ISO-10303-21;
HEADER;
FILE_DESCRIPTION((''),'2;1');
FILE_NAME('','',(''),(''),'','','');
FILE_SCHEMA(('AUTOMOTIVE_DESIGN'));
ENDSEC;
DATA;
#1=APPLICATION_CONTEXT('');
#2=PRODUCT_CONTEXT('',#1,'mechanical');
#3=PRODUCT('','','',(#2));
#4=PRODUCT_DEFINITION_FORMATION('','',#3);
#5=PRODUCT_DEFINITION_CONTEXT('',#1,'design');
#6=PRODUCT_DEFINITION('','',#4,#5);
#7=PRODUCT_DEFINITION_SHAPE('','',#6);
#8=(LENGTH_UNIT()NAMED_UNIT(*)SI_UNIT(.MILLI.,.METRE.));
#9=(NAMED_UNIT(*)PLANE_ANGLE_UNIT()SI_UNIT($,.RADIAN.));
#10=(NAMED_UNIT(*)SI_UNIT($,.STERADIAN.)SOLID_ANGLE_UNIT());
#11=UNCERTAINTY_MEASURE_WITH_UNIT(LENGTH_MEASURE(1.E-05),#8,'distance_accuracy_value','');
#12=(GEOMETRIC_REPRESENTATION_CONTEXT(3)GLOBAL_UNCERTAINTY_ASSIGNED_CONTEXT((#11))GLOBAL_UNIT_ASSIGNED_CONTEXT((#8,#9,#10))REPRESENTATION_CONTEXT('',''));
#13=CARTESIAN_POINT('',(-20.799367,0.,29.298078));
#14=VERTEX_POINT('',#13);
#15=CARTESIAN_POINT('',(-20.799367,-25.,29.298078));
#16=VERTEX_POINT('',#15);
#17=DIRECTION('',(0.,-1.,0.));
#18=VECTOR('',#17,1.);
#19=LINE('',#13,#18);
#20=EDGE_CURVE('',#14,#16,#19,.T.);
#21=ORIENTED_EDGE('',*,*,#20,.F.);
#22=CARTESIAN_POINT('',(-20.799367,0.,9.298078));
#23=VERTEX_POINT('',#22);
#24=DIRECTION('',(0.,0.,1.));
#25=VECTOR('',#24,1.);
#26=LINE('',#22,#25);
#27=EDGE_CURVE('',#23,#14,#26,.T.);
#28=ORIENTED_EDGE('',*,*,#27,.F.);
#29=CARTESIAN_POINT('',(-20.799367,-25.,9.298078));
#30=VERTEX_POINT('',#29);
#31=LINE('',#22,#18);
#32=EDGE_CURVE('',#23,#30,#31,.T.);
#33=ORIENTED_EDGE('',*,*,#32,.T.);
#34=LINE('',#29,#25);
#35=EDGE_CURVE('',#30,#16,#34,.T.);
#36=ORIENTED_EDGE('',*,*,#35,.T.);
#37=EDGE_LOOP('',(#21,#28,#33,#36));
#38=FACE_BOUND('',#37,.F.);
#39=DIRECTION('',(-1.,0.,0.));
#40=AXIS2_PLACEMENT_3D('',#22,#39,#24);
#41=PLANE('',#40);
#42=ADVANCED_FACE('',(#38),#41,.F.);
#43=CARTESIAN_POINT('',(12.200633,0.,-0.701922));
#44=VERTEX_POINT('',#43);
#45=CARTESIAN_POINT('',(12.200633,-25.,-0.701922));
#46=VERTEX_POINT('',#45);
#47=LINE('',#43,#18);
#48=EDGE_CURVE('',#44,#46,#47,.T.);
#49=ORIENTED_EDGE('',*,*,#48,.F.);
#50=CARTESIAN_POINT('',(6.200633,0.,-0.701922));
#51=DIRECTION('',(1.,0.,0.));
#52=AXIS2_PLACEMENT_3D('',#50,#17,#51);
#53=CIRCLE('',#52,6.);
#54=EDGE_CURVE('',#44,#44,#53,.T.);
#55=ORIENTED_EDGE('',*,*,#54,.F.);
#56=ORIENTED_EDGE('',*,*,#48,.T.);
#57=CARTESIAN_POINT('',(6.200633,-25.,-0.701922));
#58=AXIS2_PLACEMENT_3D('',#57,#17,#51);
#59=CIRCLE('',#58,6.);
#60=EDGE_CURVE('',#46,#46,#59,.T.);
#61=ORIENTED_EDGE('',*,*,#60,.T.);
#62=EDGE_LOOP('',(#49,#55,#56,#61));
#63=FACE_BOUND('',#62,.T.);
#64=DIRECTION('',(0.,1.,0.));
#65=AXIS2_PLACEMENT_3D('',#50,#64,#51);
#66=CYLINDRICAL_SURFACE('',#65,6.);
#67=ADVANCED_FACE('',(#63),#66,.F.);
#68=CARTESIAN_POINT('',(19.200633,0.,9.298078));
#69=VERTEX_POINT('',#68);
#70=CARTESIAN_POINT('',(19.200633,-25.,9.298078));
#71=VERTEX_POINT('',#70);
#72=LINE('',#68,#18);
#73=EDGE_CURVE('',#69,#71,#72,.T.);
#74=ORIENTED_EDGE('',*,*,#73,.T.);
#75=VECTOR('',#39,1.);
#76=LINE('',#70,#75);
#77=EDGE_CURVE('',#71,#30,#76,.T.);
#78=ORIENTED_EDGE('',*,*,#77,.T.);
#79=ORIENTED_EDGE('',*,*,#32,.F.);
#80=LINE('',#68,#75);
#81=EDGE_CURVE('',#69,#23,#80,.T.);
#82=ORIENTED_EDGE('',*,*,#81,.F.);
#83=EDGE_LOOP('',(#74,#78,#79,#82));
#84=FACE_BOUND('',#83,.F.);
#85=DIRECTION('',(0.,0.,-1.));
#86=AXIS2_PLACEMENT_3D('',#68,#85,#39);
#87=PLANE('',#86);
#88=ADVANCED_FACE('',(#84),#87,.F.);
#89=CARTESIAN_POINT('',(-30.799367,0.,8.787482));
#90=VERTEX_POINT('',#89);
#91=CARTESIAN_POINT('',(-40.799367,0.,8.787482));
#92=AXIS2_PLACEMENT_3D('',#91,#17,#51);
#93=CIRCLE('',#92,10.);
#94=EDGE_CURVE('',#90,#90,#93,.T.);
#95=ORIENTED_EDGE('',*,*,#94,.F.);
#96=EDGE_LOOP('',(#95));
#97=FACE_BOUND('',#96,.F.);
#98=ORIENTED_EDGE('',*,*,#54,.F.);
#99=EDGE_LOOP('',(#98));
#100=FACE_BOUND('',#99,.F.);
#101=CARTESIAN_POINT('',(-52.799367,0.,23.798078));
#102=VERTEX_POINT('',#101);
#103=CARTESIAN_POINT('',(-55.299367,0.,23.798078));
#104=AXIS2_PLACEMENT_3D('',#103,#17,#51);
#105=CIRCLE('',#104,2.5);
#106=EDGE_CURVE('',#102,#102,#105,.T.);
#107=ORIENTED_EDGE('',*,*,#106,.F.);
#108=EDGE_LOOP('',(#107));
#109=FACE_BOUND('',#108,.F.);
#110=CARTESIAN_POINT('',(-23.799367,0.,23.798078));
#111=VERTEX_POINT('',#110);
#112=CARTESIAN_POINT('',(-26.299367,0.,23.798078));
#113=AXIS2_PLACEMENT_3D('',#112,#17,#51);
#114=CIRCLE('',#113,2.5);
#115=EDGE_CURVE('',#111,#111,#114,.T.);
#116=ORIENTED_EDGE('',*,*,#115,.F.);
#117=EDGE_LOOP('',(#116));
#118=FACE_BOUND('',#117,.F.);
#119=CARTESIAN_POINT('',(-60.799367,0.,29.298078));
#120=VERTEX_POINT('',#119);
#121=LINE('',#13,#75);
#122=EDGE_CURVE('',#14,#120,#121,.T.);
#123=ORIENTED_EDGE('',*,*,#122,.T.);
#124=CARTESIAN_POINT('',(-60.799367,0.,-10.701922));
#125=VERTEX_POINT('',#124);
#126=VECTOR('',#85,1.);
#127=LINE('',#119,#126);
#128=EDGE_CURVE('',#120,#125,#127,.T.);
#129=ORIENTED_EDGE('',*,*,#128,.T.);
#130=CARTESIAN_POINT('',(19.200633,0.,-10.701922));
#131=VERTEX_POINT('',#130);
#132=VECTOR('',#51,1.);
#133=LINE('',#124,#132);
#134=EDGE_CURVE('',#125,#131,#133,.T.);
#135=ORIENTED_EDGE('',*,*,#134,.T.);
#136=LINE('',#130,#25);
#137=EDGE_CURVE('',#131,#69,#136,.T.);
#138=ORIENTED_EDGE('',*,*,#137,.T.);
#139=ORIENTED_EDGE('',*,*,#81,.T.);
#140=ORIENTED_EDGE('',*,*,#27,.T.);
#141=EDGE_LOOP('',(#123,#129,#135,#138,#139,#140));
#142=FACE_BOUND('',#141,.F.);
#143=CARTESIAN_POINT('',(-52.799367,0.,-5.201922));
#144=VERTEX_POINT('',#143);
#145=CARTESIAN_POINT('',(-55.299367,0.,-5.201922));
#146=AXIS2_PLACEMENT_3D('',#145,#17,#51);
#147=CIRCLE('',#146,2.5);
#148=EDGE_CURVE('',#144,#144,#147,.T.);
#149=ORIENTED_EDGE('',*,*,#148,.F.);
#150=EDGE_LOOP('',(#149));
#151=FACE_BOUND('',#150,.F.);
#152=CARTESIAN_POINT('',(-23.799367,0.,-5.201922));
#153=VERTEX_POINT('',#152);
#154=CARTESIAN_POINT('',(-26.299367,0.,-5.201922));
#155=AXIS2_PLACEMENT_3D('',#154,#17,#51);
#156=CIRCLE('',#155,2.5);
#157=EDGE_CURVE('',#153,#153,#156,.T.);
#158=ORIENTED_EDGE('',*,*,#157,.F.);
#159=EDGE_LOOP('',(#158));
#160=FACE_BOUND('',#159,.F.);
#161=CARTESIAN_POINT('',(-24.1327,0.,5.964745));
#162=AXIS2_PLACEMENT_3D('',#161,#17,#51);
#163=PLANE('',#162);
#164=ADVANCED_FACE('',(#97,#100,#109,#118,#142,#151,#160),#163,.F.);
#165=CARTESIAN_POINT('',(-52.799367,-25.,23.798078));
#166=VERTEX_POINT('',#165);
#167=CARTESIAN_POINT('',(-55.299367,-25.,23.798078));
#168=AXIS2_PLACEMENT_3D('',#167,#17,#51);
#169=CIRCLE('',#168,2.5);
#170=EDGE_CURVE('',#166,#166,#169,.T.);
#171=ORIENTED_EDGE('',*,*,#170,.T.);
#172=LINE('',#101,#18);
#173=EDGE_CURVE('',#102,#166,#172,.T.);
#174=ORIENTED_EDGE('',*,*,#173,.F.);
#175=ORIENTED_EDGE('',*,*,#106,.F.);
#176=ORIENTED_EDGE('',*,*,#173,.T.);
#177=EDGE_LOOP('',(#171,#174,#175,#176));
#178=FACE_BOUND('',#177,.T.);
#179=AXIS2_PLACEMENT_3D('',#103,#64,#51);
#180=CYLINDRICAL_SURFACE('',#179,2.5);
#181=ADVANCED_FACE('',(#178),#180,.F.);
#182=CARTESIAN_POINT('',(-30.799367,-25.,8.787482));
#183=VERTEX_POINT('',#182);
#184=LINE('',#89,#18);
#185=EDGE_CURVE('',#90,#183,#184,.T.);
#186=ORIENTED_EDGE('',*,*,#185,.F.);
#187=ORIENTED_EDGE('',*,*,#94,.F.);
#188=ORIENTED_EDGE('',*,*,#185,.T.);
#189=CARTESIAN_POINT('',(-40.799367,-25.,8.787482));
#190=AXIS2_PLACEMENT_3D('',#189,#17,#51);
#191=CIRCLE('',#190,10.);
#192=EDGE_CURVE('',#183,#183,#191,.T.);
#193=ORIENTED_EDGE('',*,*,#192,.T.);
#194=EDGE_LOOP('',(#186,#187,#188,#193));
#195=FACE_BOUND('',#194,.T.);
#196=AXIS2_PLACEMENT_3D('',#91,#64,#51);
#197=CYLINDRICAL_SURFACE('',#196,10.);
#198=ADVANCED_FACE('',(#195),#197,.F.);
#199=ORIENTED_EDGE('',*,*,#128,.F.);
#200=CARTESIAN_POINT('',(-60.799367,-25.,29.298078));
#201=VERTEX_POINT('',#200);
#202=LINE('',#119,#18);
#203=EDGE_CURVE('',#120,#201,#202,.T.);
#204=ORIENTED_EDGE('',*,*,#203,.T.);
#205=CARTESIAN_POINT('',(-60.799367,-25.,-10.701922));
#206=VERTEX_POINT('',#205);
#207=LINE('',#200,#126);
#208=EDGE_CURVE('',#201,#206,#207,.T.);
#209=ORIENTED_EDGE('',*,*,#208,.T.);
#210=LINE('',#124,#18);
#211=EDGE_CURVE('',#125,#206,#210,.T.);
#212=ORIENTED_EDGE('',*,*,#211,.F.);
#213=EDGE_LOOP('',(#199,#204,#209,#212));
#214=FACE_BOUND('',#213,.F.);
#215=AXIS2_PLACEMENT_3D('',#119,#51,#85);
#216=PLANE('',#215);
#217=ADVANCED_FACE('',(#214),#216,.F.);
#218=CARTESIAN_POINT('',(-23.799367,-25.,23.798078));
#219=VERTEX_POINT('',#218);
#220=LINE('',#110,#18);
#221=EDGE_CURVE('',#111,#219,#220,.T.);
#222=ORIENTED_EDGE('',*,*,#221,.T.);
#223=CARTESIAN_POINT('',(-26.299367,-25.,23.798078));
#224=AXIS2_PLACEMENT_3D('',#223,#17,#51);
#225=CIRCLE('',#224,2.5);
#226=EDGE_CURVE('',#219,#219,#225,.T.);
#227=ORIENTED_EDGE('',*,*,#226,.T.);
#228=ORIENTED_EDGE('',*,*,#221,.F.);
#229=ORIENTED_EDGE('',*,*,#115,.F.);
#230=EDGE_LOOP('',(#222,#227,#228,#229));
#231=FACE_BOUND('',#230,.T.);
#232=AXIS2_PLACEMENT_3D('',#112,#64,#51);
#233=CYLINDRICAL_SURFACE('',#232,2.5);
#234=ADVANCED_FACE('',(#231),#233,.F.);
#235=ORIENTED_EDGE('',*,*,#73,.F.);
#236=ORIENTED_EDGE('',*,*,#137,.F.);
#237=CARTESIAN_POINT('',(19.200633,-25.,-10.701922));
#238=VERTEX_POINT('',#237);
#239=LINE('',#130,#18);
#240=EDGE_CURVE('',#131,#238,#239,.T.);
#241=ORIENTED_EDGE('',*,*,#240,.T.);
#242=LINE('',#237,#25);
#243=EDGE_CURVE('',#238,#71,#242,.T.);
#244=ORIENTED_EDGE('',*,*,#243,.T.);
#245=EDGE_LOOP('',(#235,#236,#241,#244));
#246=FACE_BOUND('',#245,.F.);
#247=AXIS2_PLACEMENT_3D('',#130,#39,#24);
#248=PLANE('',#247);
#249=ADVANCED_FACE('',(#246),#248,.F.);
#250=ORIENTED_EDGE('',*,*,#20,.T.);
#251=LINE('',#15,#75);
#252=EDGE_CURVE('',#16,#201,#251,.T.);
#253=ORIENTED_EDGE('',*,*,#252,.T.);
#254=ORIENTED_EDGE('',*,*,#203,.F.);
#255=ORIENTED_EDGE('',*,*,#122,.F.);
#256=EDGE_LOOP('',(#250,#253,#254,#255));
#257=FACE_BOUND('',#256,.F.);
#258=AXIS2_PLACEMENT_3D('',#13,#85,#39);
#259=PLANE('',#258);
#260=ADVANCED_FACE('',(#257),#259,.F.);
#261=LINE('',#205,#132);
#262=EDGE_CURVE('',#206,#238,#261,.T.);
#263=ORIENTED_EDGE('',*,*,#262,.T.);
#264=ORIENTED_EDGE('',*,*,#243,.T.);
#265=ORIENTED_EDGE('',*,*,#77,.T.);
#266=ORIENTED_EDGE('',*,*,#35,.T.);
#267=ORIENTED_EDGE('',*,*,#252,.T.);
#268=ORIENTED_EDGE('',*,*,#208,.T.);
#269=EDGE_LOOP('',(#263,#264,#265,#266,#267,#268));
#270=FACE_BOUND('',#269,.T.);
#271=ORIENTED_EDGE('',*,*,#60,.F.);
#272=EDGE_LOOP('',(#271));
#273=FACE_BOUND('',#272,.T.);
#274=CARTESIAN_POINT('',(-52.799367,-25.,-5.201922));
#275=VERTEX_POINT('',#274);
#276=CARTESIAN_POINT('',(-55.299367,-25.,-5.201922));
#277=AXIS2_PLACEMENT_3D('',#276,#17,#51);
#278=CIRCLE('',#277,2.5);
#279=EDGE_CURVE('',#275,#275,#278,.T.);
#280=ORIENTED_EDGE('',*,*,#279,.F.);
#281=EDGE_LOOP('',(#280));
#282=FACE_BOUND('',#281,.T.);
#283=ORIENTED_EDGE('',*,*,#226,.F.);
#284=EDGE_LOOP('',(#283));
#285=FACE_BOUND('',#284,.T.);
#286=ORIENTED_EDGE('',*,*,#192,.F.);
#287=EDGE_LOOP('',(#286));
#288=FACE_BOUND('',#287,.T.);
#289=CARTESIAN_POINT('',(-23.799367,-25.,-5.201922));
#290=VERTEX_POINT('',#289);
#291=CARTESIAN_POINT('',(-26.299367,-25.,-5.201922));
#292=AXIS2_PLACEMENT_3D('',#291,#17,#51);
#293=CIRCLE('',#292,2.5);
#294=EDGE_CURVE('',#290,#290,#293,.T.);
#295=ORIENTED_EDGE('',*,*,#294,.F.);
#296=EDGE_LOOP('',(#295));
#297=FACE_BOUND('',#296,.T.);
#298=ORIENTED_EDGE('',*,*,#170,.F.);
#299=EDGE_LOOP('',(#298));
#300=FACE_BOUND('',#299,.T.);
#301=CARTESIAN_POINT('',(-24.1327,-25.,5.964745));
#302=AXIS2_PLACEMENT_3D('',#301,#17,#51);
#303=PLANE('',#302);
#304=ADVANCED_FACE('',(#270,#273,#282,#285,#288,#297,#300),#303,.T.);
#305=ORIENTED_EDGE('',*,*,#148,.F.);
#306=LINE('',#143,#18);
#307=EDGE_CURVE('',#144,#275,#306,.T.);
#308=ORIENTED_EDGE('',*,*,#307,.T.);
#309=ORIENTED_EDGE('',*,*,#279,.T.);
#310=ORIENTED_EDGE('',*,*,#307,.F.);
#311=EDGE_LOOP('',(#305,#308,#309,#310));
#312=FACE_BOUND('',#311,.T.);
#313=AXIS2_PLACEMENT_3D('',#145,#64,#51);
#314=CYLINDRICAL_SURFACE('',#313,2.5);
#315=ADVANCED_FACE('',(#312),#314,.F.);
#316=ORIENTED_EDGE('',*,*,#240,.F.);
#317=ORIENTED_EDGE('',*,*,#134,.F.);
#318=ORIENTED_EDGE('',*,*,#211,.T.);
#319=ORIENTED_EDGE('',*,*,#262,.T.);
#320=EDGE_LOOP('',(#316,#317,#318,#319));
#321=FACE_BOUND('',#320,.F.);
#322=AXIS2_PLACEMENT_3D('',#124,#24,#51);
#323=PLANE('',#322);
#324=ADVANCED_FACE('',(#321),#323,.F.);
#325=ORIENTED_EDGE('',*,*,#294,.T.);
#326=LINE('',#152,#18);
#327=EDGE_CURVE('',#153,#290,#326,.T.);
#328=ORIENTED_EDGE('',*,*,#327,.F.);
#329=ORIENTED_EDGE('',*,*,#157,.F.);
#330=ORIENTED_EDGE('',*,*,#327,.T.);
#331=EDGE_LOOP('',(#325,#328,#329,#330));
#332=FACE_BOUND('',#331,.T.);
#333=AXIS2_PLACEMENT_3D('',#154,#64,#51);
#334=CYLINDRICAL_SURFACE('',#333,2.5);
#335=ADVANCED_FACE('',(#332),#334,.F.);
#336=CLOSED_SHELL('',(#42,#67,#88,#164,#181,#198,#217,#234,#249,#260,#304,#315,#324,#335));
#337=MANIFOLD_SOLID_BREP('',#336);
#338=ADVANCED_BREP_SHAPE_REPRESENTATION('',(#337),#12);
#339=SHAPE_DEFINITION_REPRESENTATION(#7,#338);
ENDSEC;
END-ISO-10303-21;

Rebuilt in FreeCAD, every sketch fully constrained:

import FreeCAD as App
import Part
import Sketcher

V = App.Vector

doc = App.newDocument("Part")
body = doc.addObject("PartDesign::Body", "Body")

# Sketch on XZ plane
sketch1 = body.newObject("Sketcher::SketchObject", "Sketch")
sketch1.AttachmentSupport = (doc.getObject("XZ_Plane"), [""])
sketch1.MapMode = "FlatFace"
sketch1.addGeometry([
    Part.LineSegment(V(-20.8, 29.3, 0), V(-60.8, 29.3, 0)),  # 0
    Part.LineSegment(V(-60.8, 29.3, 0), V(-60.8, -10.7, 0)),  # 1
    Part.LineSegment(V(-60.8, -10.7, 0), V(19.2, -10.7, 0)),  # 2
    Part.LineSegment(V(19.2, -10.7, 0), V(19.2, 9.3, 0)),  # 3
    Part.LineSegment(V(19.2, 9.3, 0), V(-20.8, 9.3, 0)),  # 4
    Part.LineSegment(V(-20.8, 9.3, 0), V(-20.8, 29.3, 0)),  # 5
    Part.Circle(V(-55.3, -5.2, 0), V(0, 0, 1), 2.5),  # 6
    Part.Circle(V(-26.3, -5.2, 0), V(0, 0, 1), 2.5),  # 7
    Part.Circle(V(-40.8, 8.8, 0), V(0, 0, 1), 10),  # 8
    Part.Circle(V(6.2, -0.7, 0), V(0, 0, 1), 6),  # 9
    Part.Circle(V(-55.3, 23.8, 0), V(0, 0, 1), 2.5),  # 10
    Part.Circle(V(-26.3, 23.8, 0), V(0, 0, 1), 2.5),  # 11
], False)
sketch1.addConstraint([
    Sketcher.Constraint("Coincident", 0, 2, 1, 1),
    Sketcher.Constraint("Coincident", 1, 2, 2, 1),
    Sketcher.Constraint("Coincident", 2, 2, 3, 1),
    Sketcher.Constraint("Coincident", 3, 2, 4, 1),
    Sketcher.Constraint("Coincident", 4, 2, 5, 1),
    Sketcher.Constraint("Coincident", 5, 2, 0, 1),
    Sketcher.Constraint("Horizontal", 0),
    Sketcher.Constraint("Vertical", 1),
    Sketcher.Constraint("Horizontal", 2),
    Sketcher.Constraint("Vertical", 3),
    Sketcher.Constraint("Horizontal", 4),
    Sketcher.Constraint("Vertical", 5),
    Sketcher.Constraint("Equal", 6, 7),
    Sketcher.Constraint("Equal", 7, 10),
    Sketcher.Constraint("Equal", 10, 11),
    Sketcher.Constraint("Horizontal", 6, 3, 7, 3),
    Sketcher.Constraint("Horizontal", 10, 3, 11, 3),
    Sketcher.Constraint("Vertical", 6, 3, 10, 3),
    Sketcher.Constraint("Vertical", 7, 3, 11, 3),
    Sketcher.Constraint("Equal", 0, 4),
    Sketcher.Constraint("Equal", 4, 1),
    Sketcher.Constraint("Equal", 3, 5),
    Sketcher.Constraint("Diameter", 6, 5.0),
    Sketcher.Constraint("Diameter", 8, 20.0),
    Sketcher.Constraint("Diameter", 9, 12.0),
    Sketcher.Constraint("DistanceX", 0, 2, 0, 1, 40.0),
    Sketcher.Constraint("DistanceX", 6, 3, 7, 3, 29.0),
    Sketcher.Constraint("DistanceX", 8, 3, 9, 3, 47.0),
    Sketcher.Constraint("DistanceY", 6, 3, 10, 3, 29.0),
    Sketcher.Constraint("DistanceX", 0, 2, 8, 3, 20.0),
    Sketcher.Constraint("DistanceY", 2, 2, 9, 3, 10.0),
    Sketcher.Constraint("DistanceX", 8, 3, 7, 3, 14.5),
    Sketcher.Constraint("DistanceY", 7, 3, 9, 3, 4.5),
    Sketcher.Constraint("DistanceY", 6, 3, -1, 1, 5.201922),
    Sketcher.Constraint("DistanceX", 6, 3, -1, 1, 55.299367),
    Sketcher.Constraint("DistanceY", -1, 1, 8, 3, 8.787482),
])
pad1 = body.newObject("PartDesign::Pad", "Pad")
pad1.Profile = sketch1
pad1.Length = 25

doc.recompute()
